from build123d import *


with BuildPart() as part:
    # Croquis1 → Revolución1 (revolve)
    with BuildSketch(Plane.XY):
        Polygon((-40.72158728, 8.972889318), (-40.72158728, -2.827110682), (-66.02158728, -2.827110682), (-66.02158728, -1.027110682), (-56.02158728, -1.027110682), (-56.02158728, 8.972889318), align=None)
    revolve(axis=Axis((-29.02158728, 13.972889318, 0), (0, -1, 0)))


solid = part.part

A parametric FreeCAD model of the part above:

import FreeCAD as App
import Part
import Sketcher
from FreeCAD import Vector


def add_polygon(sketch, points):
    """Adds a closed chain of lines whose ends are joined by coincident constraints."""
    first, n = sketch.GeometryCount, len(points)
    for a, b in zip(points, points[1:] + points[:1]):
        sketch.addGeometry(Part.LineSegment(App.Vector(*a, 0), App.Vector(*b, 0)), False)
    for i in range(n):
        sketch.addConstraint(Sketcher.Constraint("Coincident", first + i, 2, first + (i + 1) % n, 1))

doc = App.newDocument("Part")
body = doc.addObject("PartDesign::Body", "Body")

sketch1 = body.newObject("Sketcher::SketchObject", "Sketch")
sketch1.AttachmentSupport = (doc.getObject("XY_Plane"), [""])
sketch1.MapMode = "FlatFace"
add_polygon(sketch1, [(-40.7, -2.8), (-40.7, 9), (-56, 9), (-56, -1), (-66, -1), (-66, -2.8)])
sketch1.addGeometry(Part.LineSegment(Vector(-29, 9, 0), Vector(-29, -2.8, 0)), True)
sketch1.addConstraint([
    Sketcher.Constraint("Vertical", 0),
    Sketcher.Constraint("Horizontal", 1),
    Sketcher.Constraint("Vertical", 2),
    Sketcher.Constraint("Horizontal", 3),
    Sketcher.Constraint("Vertical", 4),
    Sketcher.Constraint("Horizontal", 5),
    Sketcher.Constraint("Vertical", 6),
    Sketcher.Constraint("Horizontal", 1, 2, 6, 1),
    Sketcher.Constraint("Horizontal", 5, 2, 6, 2),
    Sketcher.Constraint("Equal", 3, 2),
    Sketcher.Constraint("DistanceX", 3, 2, 3, 1, 10.0),
    Sketcher.Constraint("DistanceX", 1, 2, 1, 1, 15.3),
    Sketcher.Constraint("DistanceY", 0, 1, 0, 2, 11.8),
    Sketcher.Constraint("DistanceX", 1, 2, 6, 1, 27.0),
    Sketcher.Constraint("DistanceY", -1, 1, 0, 2, 8.972889),
    Sketcher.Constraint("DistanceX", 0, 2, -1, 1, 40.721587),
])
revolution = body.newObject("PartDesign::Revolution", "Revolution")
revolution.Profile = sketch1
revolution.ReferenceAxis = (sketch1, ["Axis0"])
revolution.Angle = 360

doc.recompute()
